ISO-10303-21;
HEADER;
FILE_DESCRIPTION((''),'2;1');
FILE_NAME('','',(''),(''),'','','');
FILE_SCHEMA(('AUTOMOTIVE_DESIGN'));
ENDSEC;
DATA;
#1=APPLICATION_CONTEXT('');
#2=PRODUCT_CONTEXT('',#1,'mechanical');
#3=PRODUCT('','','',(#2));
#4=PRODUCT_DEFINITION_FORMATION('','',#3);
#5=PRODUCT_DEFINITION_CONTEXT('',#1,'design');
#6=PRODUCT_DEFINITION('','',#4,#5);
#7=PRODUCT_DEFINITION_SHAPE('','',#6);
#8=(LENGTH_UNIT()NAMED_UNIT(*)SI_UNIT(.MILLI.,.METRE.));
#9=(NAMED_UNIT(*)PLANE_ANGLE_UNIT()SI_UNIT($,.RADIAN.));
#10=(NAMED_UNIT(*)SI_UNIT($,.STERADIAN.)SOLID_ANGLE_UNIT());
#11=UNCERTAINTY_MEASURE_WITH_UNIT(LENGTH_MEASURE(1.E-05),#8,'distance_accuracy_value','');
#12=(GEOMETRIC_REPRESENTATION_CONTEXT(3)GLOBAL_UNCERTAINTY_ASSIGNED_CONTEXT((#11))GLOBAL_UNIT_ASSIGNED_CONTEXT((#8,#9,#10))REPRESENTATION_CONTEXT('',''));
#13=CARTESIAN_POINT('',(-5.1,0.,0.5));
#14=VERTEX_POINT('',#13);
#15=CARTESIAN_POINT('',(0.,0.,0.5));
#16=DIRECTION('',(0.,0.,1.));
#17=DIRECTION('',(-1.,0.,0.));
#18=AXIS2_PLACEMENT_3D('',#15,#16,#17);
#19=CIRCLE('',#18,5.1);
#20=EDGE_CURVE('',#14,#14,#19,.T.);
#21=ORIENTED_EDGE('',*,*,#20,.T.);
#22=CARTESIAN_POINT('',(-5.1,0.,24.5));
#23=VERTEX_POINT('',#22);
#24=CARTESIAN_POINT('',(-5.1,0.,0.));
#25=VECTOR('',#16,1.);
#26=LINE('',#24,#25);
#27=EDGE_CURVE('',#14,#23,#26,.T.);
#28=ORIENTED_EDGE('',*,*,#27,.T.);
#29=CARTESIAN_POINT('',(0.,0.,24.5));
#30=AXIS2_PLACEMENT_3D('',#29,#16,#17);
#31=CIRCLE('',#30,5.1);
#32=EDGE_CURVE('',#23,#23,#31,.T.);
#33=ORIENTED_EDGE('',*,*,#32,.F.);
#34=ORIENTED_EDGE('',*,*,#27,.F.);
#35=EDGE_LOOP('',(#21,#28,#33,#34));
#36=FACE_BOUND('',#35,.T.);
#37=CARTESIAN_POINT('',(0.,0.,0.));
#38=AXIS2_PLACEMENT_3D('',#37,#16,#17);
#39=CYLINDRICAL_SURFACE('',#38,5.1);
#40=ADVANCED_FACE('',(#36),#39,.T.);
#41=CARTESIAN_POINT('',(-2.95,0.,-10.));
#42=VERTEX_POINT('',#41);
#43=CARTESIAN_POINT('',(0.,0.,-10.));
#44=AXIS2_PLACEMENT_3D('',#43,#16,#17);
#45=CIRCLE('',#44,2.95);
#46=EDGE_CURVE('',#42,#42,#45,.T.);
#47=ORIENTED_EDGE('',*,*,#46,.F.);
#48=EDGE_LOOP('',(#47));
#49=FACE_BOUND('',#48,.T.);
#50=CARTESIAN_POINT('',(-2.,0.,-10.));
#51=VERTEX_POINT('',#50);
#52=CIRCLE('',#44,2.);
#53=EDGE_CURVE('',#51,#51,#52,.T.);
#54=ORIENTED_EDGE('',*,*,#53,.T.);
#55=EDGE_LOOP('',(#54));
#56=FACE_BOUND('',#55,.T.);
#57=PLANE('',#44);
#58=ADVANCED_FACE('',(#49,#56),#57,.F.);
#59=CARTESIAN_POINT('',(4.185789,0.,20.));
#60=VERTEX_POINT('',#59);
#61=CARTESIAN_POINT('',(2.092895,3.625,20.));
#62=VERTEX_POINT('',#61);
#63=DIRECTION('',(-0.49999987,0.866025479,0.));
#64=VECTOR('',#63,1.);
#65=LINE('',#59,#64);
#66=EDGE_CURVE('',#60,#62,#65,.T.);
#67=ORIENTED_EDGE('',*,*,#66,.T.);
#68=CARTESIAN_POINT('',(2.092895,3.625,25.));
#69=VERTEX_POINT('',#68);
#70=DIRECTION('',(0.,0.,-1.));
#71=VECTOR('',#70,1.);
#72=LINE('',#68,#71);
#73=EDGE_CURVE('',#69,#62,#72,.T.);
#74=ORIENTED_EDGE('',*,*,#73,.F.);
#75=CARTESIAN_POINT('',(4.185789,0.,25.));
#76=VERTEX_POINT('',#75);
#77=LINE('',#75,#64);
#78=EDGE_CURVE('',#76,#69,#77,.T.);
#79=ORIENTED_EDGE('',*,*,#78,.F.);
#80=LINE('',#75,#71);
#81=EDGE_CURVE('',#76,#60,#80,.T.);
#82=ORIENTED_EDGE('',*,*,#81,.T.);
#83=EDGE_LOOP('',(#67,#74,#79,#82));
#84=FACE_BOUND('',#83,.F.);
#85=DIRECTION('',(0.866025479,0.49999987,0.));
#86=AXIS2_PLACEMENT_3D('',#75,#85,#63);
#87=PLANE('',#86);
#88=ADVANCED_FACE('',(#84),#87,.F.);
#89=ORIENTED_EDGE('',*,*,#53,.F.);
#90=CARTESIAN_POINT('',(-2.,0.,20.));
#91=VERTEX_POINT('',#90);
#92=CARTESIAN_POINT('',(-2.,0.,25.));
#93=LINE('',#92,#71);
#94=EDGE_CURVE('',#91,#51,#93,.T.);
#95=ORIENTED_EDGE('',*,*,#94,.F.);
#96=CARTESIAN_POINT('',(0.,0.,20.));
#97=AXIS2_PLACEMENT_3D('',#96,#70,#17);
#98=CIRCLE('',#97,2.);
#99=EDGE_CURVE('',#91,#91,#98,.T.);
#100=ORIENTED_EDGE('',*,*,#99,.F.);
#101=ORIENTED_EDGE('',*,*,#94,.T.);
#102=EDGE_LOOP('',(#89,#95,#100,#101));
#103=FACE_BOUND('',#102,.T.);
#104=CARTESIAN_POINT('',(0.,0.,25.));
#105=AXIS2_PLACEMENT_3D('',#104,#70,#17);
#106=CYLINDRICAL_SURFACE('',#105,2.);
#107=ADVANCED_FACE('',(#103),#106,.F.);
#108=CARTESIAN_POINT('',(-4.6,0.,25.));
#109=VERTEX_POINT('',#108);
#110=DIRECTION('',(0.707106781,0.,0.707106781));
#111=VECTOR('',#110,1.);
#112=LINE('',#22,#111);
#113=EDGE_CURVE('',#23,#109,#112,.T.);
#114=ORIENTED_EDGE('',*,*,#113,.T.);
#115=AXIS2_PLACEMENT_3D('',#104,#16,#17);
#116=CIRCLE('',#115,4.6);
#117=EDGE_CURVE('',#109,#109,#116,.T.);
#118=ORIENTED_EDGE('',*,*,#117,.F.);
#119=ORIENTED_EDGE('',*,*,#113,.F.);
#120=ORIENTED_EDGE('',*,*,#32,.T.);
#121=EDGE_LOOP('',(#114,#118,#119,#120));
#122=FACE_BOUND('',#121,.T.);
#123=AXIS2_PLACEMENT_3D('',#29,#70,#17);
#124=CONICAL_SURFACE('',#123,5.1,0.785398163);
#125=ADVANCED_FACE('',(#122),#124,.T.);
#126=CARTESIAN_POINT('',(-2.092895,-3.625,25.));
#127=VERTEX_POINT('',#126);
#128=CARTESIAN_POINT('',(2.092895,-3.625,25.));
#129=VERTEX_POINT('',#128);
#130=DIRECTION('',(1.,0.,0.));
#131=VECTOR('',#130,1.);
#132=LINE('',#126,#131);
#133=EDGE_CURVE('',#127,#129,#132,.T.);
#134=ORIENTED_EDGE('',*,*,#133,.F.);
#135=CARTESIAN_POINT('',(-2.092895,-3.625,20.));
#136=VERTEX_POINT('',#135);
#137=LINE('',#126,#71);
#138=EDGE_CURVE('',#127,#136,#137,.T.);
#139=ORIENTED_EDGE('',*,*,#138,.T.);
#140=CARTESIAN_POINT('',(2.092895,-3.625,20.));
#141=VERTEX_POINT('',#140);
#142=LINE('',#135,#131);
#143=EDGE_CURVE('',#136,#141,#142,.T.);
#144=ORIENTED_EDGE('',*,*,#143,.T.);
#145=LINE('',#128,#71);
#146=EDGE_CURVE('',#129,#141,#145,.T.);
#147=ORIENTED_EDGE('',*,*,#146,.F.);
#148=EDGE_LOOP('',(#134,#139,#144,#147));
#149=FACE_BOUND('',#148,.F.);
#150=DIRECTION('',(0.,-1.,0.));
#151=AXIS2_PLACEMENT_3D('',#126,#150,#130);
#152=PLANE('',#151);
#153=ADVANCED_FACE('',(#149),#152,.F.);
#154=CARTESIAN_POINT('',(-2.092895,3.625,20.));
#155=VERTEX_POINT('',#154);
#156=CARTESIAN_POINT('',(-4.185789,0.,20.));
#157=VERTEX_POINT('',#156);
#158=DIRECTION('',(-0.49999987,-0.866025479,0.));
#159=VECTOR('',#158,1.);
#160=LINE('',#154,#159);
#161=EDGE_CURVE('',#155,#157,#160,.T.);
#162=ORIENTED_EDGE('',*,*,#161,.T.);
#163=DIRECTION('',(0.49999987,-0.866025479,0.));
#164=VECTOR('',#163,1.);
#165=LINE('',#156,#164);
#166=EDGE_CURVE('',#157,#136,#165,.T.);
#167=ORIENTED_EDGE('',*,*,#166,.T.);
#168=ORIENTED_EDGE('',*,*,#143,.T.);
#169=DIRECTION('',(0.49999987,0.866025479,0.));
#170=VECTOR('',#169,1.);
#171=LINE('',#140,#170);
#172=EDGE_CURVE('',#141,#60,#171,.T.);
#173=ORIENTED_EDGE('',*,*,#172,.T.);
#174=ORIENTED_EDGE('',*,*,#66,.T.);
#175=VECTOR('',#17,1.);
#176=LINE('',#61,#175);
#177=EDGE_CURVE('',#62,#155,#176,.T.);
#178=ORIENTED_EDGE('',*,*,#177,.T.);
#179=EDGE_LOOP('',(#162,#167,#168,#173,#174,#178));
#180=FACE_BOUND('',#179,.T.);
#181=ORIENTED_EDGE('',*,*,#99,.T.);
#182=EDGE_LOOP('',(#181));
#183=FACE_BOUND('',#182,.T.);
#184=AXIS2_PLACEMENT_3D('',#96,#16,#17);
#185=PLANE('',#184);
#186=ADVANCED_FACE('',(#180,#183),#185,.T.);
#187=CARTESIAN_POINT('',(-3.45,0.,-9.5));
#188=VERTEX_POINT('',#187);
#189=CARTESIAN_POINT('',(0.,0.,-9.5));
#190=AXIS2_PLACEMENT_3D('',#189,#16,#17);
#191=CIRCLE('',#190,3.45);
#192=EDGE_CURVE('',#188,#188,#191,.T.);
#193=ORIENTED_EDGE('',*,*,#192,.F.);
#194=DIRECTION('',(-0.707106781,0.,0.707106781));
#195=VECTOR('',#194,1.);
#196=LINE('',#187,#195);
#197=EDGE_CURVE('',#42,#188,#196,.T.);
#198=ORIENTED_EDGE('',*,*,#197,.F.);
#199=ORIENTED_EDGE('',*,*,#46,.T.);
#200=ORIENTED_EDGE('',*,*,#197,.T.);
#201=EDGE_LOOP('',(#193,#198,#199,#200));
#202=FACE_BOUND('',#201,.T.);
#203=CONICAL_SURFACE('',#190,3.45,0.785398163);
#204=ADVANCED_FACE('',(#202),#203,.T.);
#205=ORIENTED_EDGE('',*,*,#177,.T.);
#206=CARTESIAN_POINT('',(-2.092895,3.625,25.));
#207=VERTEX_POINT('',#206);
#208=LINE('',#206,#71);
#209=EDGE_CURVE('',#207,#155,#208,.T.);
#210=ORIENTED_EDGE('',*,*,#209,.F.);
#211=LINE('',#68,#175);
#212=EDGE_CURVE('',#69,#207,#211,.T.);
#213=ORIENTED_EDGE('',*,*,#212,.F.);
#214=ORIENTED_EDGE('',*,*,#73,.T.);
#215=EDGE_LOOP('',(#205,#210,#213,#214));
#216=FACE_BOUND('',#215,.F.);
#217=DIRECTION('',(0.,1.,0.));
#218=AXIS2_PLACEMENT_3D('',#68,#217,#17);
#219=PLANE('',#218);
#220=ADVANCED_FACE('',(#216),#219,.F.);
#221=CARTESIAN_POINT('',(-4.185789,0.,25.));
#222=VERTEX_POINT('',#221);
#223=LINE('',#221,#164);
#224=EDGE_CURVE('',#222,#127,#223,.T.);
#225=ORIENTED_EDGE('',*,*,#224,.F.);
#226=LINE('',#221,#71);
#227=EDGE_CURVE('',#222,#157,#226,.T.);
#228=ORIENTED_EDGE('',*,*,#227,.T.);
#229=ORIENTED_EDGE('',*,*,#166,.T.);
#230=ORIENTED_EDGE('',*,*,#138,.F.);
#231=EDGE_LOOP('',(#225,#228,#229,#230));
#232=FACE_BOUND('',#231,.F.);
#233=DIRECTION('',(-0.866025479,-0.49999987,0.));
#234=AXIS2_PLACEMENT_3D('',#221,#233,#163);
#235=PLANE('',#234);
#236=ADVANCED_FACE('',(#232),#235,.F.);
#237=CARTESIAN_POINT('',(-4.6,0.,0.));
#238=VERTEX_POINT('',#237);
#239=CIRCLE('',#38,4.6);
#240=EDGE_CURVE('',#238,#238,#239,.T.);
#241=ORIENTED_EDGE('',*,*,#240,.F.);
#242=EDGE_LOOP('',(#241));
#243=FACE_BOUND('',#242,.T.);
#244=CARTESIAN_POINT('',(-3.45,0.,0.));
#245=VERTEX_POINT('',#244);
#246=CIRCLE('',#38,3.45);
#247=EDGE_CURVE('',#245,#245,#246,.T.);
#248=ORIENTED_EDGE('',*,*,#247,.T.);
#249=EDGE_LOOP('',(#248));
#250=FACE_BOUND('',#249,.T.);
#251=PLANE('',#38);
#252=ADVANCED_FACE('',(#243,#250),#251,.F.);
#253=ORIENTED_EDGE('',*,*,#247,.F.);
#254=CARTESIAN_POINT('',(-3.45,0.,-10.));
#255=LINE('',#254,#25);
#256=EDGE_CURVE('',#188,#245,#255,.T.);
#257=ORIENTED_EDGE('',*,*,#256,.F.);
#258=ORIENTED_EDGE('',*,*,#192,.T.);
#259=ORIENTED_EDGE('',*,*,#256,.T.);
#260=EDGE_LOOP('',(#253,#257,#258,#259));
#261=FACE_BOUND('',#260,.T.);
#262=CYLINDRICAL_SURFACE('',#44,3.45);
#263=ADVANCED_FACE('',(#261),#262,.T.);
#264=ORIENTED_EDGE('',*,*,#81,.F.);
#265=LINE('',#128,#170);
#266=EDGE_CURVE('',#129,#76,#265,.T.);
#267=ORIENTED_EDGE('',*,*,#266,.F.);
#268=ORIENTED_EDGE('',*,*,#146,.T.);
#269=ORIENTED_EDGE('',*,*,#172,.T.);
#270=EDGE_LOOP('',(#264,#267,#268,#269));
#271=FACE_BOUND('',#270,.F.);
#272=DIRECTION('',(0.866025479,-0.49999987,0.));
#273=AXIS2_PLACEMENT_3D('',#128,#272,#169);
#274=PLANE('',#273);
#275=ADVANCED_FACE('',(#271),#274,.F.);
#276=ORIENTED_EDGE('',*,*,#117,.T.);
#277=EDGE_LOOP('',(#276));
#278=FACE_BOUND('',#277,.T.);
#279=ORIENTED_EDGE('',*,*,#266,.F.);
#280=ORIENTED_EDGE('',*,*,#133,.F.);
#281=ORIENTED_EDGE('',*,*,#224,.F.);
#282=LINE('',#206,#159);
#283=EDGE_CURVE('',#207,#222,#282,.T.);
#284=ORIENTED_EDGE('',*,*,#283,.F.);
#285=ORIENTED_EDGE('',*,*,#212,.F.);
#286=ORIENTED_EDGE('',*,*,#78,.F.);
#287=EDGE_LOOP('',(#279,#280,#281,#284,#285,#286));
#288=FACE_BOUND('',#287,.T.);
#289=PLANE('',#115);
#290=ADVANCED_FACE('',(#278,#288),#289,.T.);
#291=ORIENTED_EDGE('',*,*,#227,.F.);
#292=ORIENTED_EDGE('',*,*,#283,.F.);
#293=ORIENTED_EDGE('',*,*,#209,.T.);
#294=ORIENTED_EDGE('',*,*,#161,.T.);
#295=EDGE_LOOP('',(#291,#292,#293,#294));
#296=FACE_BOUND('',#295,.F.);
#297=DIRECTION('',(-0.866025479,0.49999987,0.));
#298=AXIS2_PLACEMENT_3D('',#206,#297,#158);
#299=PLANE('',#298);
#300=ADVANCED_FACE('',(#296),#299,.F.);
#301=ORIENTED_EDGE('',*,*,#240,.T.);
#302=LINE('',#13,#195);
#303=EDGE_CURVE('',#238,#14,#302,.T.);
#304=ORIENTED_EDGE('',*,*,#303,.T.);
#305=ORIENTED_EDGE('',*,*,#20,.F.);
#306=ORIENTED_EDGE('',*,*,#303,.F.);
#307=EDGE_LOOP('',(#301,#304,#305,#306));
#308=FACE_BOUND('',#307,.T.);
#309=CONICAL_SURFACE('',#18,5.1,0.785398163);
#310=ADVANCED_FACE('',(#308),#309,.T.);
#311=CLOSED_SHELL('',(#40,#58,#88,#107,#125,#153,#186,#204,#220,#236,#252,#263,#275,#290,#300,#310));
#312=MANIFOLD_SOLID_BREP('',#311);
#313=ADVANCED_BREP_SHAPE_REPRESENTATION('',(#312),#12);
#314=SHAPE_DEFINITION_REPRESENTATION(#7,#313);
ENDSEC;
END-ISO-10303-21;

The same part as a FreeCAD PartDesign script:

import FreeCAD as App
import Part
import Sketcher
Q = App.Units.Quantity


def edges_at(feature, points):
    """Names of the edges that pass closest to the given points."""
    edges = feature.Shape.Edges
    near = lambda p: min(range(len(edges)), key=lambda i: edges[i].distToShape(Part.Vertex(*p))[0])
    return sorted({f"Edge{near(p) + 1}" for p in points})

doc = App.newDocument("Part")
body = doc.addObject("PartDesign::Body", "Body")

sketch1 = body.newObject("Sketcher::SketchObject", "Sketch")
sketch1.AttachmentSupport = (doc.getObject("XZ_Plane"), [""])
sketch1.MapMode = "FlatFace"
sketch1.addGeometry(Part.LineSegment(App.Vector(-3.5, -10, 0), App.Vector(-2, -10, 0)), False)
sketch1.addGeometry(Part.LineSegment(App.Vector(-2, -10, 0), App.Vector(-2, 25, 0)), False)
sketch1.addGeometry(Part.LineSegment(App.Vector(-2, 25, 0), App.Vector(-5.1, 25, 0)), False)
sketch1.addGeometry(Part.LineSegment(App.Vector(-5.1, 25, 0), App.Vector(-5.1, 0, 0)), False)
sketch1.addGeometry(Part.LineSegment(App.Vector(-5.1, 0, 0), App.Vector(-3.5, 0, 0)), False)
sketch1.addGeometry(Part.LineSegment(App.Vector(-3.5, 0, 0), App.Vector(-3.5, -10, 0)), False)
sketch1.addConstraint(Sketcher.Constraint("Coincident", 0, 2, 1, 1))
sketch1.addConstraint(Sketcher.Constraint("Coincident", 1, 2, 2, 1))
sketch1.addConstraint(Sketcher.Constraint("Coincident", 2, 2, 3, 1))
sketch1.addConstraint(Sketcher.Constraint("Coincident", 3, 2, 4, 1))
sketch1.addConstraint(Sketcher.Constraint("Coincident", 4, 2, 5, 1))
sketch1.addConstraint(Sketcher.Constraint("Coincident", 5, 2, 0, 1))
sketch1.addConstraint(Sketcher.Constraint("Horizontal", 0))
sketch1.addConstraint(Sketcher.Constraint("Vertical", 1))
sketch1.addConstraint(Sketcher.Constraint("Horizontal", 2))
sketch1.addConstraint(Sketcher.Constraint("Vertical", 3))
sketch1.addConstraint(Sketcher.Constraint("Horizontal", 4))
sketch1.addConstraint(Sketcher.Constraint("Vertical", 5))
sketch1.addConstraint(Sketcher.Constraint("PointOnObject", 3, 2, -1))
sketch1.addConstraint(Sketcher.Constraint("DistanceY", 1, 1, 1, 2, 35.0))
sketch1.addConstraint(Sketcher.Constraint("DistanceY", 3, 2, 3, 1, 25.0))
sketch1.addConstraint(Sketcher.Constraint("DistanceX", 2, 2, 2, 1, 3.1))
sketch1.addConstraint(Sketcher.Constraint("DistanceX", 0, 2, -1, 1, 2.0))
sketch1.addConstraint(Sketcher.Constraint("DistanceX", 0, 1, 0, 2, 1.45))
revolution = body.newObject("PartDesign::Revolution", "Revolution")
revolution.Profile = sketch1
revolution.ReferenceAxis = (sketch1, ["V_Axis"])
revolution.Angle = 360

sketch2 = body.newObject("Sketcher::SketchObject", "Sketch001")
sketch2.AttachmentSupport = (doc.getObject("XY_Plane"), [""])
sketch2.MapMode = "FlatFace"
sketch2.AttachmentOffset = App.Placement(App.Vector(0, 0, 25), App.Rotation())
sketch2.addGeometry(Part.LineSegment(App.Vector(-2.1, 3.6, 0), App.Vector(-4.2, 0, 0)), False)
sketch2.addGeometry(Part.LineSegment(App.Vector(-4.2, 0, 0), App.Vector(-2.1, -3.6, 0)), False)
sketch2.addGeometry(Part.LineSegment(App.Vector(-2.1, -3.6, 0), App.Vector(2.1, -3.6, 0)), False)
sketch2.addGeometry(Part.LineSegment(App.Vector(2.1, -3.6, 0), App.Vector(4.2, 0, 0)), False)
sketch2.addGeometry(Part.LineSegment(App.Vector(4.2, 0, 0), App.Vector(2.1, 3.6, 0)), False)
sketch2.addGeometry(Part.LineSegment(App.Vector(2.1, 3.6, 0), App.Vector(-2.1, 3.6, 0)), False)
sketch2.addConstraint(Sketcher.Constraint("Coincident", 0, 2, 1, 1))
sketch2.addConstraint(Sketcher.Constraint("Coincident", 1, 2, 2, 1))
sketch2.addConstraint(Sketcher.Constraint("Coincident", 2, 2, 3, 1))
sketch2.addConstraint(Sketcher.Constraint("Coincident", 3, 2, 4, 1))
sketch2.addConstraint(Sketcher.Constraint("Coincident", 4, 2, 5, 1))
sketch2.addConstraint(Sketcher.Constraint("Coincident", 5, 2, 0, 1))
sketch2.addConstraint(Sketcher.Constraint("Horizontal", 2))
sketch2.addConstraint(Sketcher.Constraint("Horizontal", 5))
sketch2.addConstraint(Sketcher.Constraint("Symmetric", 0, 2, 3, 2, -1, 1))
sketch2.addConstraint(Sketcher.Constraint("Symmetric", 1, 2, 4, 2, -1, 1))
sketch2.addConstraint(Sketcher.Constraint("PointOnObject", 0, 2, -1))
sketch2.addConstraint(Sketcher.Constraint("Parallel", 0, 3))
sketch2.addConstraint(Sketcher.Constraint("Vertical", 2, 2, 4, 2))
sketch2.addConstraint(Sketcher.Constraint("Angle", 0, Q("-119.999991 deg")))
sketch2.addConstraint(Sketcher.Constraint("DistanceY", 2, 2, 4, 2, 7.25))
sketch2.addConstraint(Sketcher.Constraint("DistanceX", 2, 1, 2, 2, 4.18579))
pocket1 = body.newObject("PartDesign::Pocket", "Pocket")
pocket1.Profile = sketch2
pocket1.Length = 5
doc.recompute()

chamfer = body.newObject("PartDesign::Chamfer", "Chamfer")
chamfer.Base = (pocket1, edges_at(pocket1, [(3.45, 0, -10), (5.1, 0, 0), (5.1, 0, 25)]))
chamfer.Size = 0.5

doc.recompute()
